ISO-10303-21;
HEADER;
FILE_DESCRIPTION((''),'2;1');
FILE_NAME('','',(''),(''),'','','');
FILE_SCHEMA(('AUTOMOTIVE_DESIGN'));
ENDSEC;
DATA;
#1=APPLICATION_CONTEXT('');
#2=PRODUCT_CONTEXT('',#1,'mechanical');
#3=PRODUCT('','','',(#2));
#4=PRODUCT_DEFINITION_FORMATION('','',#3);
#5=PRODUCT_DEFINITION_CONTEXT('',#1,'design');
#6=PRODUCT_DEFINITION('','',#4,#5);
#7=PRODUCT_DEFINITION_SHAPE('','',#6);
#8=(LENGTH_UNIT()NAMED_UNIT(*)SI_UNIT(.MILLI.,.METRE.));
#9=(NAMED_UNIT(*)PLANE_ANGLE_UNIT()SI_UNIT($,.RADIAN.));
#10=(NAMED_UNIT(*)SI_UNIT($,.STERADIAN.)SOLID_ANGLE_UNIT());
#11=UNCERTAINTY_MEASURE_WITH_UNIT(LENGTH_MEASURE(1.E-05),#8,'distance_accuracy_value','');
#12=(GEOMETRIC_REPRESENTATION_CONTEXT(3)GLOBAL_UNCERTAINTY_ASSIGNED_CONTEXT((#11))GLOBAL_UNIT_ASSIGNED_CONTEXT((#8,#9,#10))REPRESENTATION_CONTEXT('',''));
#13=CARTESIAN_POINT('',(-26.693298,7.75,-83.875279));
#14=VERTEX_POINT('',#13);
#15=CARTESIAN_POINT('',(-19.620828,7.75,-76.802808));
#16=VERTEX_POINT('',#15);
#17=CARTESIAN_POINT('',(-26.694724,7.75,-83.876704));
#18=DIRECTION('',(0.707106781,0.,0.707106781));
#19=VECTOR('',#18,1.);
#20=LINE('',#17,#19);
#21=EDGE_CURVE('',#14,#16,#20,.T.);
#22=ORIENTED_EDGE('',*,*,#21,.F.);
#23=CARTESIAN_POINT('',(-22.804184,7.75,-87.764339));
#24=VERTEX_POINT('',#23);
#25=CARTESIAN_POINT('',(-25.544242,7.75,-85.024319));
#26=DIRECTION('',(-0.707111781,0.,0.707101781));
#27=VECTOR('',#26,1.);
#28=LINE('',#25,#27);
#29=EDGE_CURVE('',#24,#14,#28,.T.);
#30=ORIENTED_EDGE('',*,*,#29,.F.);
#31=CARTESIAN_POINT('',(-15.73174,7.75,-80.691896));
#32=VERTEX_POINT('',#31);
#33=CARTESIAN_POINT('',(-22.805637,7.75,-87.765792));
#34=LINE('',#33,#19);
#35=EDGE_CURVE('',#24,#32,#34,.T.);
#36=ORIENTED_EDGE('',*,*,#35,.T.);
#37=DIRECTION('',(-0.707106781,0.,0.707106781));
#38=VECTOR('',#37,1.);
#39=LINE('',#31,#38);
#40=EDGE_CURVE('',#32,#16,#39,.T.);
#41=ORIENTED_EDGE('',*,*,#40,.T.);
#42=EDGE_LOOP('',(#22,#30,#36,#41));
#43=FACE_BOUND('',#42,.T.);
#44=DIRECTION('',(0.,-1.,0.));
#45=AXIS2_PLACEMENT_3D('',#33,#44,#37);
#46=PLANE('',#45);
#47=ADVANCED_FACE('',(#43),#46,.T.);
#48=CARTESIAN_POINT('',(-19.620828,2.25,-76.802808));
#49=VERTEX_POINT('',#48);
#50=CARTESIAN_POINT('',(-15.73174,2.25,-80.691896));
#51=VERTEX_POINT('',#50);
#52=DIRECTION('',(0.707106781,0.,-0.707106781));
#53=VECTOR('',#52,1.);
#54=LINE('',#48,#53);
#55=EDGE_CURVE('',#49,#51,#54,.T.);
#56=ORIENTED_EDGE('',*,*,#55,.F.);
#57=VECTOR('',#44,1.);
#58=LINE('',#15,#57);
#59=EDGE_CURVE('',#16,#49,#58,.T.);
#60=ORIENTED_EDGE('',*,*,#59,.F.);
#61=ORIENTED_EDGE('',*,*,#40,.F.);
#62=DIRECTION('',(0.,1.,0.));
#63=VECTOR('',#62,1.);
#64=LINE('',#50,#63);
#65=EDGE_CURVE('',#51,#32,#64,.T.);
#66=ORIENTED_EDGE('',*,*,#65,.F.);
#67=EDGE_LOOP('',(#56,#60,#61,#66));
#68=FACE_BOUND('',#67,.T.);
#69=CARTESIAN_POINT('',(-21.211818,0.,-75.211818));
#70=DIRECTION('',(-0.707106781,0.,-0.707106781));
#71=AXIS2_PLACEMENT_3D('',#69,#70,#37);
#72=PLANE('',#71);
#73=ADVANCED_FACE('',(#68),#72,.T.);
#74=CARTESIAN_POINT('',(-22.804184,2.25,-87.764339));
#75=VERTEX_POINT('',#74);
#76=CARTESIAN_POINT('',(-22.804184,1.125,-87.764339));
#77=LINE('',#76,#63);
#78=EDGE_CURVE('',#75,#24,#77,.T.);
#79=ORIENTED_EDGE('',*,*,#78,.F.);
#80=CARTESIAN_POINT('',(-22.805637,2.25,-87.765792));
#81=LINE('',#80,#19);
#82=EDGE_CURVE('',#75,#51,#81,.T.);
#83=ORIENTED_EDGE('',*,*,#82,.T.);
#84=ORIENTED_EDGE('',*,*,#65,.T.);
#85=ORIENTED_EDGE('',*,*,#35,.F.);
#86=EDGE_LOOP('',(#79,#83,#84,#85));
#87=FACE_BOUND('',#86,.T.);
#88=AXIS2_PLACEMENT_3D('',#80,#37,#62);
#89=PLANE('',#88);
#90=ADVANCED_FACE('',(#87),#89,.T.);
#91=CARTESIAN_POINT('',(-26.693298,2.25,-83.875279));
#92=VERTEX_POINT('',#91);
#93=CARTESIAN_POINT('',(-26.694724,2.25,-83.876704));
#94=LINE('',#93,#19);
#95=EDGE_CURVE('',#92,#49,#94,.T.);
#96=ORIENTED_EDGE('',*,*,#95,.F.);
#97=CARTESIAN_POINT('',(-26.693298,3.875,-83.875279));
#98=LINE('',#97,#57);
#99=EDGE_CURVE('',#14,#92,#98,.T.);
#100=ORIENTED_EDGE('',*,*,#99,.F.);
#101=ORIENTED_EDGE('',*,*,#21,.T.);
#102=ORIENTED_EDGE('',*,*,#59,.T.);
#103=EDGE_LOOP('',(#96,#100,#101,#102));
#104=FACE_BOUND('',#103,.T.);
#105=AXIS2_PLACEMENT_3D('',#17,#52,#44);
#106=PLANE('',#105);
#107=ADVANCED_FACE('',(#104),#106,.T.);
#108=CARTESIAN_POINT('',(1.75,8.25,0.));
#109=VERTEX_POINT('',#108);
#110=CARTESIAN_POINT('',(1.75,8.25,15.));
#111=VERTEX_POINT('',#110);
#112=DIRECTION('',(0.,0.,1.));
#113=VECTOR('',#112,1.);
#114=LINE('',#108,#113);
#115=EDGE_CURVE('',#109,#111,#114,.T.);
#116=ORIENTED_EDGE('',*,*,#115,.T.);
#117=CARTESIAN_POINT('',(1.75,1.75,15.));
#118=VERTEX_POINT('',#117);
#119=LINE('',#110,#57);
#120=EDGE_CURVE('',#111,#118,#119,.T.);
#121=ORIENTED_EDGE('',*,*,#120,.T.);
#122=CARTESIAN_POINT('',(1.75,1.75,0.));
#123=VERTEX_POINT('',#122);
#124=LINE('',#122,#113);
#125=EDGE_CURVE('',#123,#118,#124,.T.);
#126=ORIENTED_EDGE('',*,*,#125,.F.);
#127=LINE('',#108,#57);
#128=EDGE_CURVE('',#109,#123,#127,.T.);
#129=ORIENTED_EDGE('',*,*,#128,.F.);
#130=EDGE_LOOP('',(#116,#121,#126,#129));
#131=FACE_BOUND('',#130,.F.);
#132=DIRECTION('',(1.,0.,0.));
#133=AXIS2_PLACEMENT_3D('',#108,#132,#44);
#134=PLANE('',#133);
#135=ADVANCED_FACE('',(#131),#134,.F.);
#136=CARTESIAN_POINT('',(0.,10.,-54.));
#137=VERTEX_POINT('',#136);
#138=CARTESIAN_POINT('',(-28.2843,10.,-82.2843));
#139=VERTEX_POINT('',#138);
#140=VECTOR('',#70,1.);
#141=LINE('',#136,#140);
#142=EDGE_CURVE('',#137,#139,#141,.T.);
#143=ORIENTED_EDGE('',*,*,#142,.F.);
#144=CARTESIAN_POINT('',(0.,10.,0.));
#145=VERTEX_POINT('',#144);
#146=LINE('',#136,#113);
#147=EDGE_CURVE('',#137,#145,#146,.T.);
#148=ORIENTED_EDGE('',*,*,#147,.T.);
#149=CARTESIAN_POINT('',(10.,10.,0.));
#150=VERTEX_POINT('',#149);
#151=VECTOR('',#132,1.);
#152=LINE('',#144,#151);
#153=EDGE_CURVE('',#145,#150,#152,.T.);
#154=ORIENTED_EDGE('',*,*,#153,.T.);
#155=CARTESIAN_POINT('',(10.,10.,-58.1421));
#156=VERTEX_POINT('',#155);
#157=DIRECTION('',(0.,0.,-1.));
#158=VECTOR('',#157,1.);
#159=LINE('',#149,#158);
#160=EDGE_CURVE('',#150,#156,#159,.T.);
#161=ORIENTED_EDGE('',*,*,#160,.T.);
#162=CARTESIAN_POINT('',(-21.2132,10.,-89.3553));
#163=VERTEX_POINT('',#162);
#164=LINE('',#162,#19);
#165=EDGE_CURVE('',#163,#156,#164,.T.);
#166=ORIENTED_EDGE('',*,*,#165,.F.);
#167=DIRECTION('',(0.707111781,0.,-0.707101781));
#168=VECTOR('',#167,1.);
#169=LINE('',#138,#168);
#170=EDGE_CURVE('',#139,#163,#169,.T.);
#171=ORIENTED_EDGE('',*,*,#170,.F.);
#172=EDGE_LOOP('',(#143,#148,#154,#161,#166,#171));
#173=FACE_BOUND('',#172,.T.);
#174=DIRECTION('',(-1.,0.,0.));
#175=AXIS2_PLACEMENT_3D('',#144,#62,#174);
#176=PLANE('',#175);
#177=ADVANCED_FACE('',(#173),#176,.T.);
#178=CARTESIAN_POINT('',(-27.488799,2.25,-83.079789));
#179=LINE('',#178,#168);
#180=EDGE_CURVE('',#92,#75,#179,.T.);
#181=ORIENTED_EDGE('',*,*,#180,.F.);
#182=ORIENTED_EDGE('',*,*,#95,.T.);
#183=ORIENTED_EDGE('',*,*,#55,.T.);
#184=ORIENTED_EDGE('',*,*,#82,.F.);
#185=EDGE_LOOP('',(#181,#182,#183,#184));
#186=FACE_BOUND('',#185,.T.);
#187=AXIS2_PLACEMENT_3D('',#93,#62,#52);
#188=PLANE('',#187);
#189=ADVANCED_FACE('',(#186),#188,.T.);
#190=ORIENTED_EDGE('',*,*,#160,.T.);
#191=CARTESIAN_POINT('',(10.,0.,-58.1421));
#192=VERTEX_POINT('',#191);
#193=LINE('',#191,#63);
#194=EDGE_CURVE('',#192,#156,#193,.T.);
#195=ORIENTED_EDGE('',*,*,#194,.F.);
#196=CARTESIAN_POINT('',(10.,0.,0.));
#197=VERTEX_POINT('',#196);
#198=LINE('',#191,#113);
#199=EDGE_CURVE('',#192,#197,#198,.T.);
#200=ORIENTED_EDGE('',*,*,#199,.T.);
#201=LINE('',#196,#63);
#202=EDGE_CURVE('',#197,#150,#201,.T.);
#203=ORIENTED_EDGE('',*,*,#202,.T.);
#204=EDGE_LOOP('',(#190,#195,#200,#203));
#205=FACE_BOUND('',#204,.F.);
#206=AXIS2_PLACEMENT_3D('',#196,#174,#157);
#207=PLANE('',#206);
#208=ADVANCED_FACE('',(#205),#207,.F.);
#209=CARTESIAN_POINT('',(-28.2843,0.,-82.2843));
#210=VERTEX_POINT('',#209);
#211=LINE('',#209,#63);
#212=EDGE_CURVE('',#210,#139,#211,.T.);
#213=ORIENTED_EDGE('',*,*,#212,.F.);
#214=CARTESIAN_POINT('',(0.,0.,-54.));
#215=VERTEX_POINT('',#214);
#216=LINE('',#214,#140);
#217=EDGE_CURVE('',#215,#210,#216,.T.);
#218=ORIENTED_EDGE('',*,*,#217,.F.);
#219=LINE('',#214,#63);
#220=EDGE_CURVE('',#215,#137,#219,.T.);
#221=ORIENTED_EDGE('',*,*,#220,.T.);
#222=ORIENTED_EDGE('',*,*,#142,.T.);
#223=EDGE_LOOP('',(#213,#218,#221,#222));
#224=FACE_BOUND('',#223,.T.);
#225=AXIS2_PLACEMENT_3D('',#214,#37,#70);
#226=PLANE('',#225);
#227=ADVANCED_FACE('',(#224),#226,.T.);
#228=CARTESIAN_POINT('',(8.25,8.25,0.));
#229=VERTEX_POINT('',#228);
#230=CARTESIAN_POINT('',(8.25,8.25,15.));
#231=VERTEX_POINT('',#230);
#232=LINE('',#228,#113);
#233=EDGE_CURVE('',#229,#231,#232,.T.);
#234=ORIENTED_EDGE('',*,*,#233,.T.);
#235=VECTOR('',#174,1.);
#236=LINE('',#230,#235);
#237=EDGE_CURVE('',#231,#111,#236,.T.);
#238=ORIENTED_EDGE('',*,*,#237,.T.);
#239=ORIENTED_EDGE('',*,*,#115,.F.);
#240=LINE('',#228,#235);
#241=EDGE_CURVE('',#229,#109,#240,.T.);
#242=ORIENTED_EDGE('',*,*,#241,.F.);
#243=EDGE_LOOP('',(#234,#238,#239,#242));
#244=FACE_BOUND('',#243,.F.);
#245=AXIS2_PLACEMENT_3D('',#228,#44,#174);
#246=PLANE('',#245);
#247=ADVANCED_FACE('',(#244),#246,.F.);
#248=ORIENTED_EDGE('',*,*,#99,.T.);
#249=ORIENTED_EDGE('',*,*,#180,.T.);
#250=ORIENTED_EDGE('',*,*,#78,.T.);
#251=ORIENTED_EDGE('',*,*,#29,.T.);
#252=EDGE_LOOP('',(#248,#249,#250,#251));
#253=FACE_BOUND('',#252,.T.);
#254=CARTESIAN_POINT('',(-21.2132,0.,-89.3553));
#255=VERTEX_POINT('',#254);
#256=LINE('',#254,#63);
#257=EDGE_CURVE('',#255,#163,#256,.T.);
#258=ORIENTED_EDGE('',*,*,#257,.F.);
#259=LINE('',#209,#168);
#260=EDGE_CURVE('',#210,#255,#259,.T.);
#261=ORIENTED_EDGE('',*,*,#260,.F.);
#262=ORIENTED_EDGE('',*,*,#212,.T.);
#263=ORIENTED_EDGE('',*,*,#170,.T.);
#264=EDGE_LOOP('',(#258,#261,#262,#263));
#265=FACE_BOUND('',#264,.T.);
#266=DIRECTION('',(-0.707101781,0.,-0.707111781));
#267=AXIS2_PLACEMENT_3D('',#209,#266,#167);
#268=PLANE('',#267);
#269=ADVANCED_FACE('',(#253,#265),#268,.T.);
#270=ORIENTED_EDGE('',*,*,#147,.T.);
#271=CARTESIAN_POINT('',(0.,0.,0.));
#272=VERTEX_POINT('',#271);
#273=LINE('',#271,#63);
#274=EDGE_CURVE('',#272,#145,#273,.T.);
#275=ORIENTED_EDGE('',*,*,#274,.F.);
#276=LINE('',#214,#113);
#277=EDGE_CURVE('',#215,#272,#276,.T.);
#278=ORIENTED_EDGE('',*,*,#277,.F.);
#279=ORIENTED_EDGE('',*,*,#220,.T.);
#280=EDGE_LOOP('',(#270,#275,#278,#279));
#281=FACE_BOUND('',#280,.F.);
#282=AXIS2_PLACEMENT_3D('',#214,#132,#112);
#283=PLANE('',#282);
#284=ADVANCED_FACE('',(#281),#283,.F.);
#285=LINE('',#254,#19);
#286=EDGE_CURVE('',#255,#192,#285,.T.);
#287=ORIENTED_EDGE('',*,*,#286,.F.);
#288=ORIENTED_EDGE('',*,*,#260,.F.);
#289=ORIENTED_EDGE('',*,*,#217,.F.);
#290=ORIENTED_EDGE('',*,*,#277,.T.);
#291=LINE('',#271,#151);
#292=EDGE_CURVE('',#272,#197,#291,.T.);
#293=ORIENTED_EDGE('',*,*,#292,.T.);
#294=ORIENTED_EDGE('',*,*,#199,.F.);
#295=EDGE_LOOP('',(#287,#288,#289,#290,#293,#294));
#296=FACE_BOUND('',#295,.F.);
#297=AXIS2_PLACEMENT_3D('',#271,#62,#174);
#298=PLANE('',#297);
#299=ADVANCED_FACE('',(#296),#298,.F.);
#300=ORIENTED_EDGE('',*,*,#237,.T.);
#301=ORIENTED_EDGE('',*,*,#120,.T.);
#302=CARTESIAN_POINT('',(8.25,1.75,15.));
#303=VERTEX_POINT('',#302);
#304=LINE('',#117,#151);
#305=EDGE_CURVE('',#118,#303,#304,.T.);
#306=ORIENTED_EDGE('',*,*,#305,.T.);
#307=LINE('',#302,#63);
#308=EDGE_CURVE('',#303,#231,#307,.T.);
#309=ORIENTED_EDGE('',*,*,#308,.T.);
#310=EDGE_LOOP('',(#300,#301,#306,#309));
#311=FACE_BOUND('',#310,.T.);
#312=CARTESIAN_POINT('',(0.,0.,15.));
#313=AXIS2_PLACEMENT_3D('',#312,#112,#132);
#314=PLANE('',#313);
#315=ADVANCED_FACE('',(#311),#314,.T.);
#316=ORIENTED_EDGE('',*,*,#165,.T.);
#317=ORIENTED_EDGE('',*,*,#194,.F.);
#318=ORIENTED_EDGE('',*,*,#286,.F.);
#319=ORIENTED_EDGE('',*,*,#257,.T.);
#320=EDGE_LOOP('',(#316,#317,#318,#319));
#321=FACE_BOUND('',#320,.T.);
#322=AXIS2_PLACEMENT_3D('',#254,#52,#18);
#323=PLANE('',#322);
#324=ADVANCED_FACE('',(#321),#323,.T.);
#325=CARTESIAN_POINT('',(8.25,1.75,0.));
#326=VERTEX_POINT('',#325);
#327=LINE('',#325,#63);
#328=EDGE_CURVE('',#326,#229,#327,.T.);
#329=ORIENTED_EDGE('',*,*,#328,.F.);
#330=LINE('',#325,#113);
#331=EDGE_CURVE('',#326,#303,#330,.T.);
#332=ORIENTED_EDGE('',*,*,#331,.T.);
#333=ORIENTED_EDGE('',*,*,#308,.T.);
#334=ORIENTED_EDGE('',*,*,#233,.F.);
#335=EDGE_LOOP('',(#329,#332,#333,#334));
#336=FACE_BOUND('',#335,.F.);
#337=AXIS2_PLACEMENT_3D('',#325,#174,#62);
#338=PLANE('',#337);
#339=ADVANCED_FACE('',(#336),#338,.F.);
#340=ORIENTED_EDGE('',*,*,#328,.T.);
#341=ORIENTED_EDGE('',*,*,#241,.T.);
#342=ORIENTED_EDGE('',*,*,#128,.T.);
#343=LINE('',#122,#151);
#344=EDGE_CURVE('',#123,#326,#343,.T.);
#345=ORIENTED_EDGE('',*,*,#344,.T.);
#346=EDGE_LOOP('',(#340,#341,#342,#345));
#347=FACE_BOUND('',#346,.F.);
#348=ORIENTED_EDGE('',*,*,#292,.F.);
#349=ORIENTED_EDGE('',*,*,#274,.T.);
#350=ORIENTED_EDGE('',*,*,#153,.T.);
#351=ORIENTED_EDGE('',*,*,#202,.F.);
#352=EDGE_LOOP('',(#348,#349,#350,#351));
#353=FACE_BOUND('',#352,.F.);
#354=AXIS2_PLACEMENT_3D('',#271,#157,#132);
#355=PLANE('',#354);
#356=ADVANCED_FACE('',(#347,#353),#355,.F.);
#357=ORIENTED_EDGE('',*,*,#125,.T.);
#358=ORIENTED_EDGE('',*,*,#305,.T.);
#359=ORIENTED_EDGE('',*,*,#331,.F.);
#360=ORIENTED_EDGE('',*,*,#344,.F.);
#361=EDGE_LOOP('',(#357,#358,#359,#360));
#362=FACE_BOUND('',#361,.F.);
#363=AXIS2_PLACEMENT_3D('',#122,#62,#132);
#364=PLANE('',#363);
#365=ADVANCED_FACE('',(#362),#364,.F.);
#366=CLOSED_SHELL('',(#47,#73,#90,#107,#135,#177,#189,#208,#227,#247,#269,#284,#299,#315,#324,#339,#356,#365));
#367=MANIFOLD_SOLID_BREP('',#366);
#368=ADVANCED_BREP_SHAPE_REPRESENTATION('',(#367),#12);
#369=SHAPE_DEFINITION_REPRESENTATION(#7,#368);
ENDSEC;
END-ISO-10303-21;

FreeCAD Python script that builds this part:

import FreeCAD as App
import Part
import Sketcher

V = App.Vector
Q = App.Units.Quantity

doc = App.newDocument("Part")
params = doc.addObject("Spreadsheet::Sheet", "Params")
for row, (alias, value) in enumerate([
    ("sketch1_width", "10 mm"),
    ("sketch1_height", "54 mm"),
    ("sketch1_length", "10 mm"),
    ("sketch1_length2", "40 mm"),
    ("pad1_length", "10 mm"),
    ("sketch2_width", "6.5 mm"),
    ("pad2_length", "15 mm"),
    ("sketch3_width", "5.5 mm"),
    ("pocket1_length", "10 mm"),
], start=1):
    params.set(f"A{row}", alias)
    params.set(f"B{row}", "=" + value)
    params.setAlias(f"B{row}", alias)

body = doc.addObject("PartDesign::Body", "Body")

# Sketch on XZ plane
sketch1 = body.newObject("Sketcher::SketchObject", "Sketch")
sketch1.AttachmentSupport = (doc.getObject("XZ_Plane"), [""])
sketch1.MapMode = "FlatFace"
sketch1.addGeometry(Part.LineSegment(V(0, -54, 0), V(0, 0, 0)), False)
sketch1.addGeometry(Part.LineSegment(V(0, 0, 0), V(10, 0, 0)), False)
sketch1.addGeometry(Part.LineSegment(V(10, 0, 0), V(10, -58, 0)), False)
sketch1.addGeometry(Part.LineSegment(V(10, -58, 0), V(-21, -89, 0)), False)
sketch1.addGeometry(Part.LineSegment(V(-21, -89, 0), V(-28, -82, 0)), False)
sketch1.addGeometry(Part.LineSegment(V(-28, -82, 0), V(0, -54, 0)), False)
sketch1.addConstraint(Sketcher.Constraint("Coincident", 0, 2, 1, 1))
sketch1.addConstraint(Sketcher.Constraint("Coincident", 1, 2, 2, 1))
sketch1.addConstraint(Sketcher.Constraint("Coincident", 2, 2, 3, 1))
sketch1.addConstraint(Sketcher.Constraint("Coincident", 3, 2, 4, 1))
sketch1.addConstraint(Sketcher.Constraint("Coincident", 4, 2, 5, 1))
sketch1.addConstraint(Sketcher.Constraint("Coincident", 5, 2, 0, 1))
sketch1.addConstraint(Sketcher.Constraint("Vertical", 0))
sketch1.addConstraint(Sketcher.Constraint("Horizontal", 1))
sketch1.addConstraint(Sketcher.Constraint("Vertical", 2))
sketch1.addConstraint(Sketcher.Constraint("Coincident", 0, 2, -1, 1))
sketch1.addConstraint(Sketcher.Constraint("Perpendicular", 3, 4))
sketch1.addConstraint(Sketcher.Constraint("Perpendicular", 4, 5))
sketch1.addConstraint(Sketcher.Constraint("DistanceX", 1, 1, 1, 2, 10.0))
sketch1.addConstraint(Sketcher.Constraint("DistanceY", 0, 1, 0, 2, 54.0))
sketch1.addConstraint(Sketcher.Constraint("Angle", 3, Q("-135 deg")))
sketch1.addConstraint(Sketcher.Constraint("Distance", 4, 10.0))
sketch1.addConstraint(Sketcher.Constraint("Distance", 5, 40.0))
sketch1.setExpression("Constraints[12]", "Params.sketch1_width")
sketch1.setExpression("Constraints[13]", "Params.sketch1_height")
sketch1.setExpression("Constraints[15]", "Params.sketch1_length")
sketch1.setExpression("Constraints[16]", "Params.sketch1_length2")
pad1 = body.newObject("PartDesign::Pad", "Pad")
pad1.Profile = sketch1
pad1.setExpression("Length", "Params.pad1_length")
pad1.Reversed = True

# Sketch on XY plane
sketch2 = body.newObject("Sketcher::SketchObject", "Sketch001")
sketch2.AttachmentSupport = (doc.getObject("XY_Plane"), [""])
sketch2.MapMode = "FlatFace"
sketch2.addGeometry(Part.LineSegment(V(2, 8, 0), V(2, 2, 0)), False)
sketch2.addGeometry(Part.LineSegment(V(2, 2, 0), V(8, 2, 0)), False)
sketch2.addGeometry(Part.LineSegment(V(8, 2, 0), V(8, 8, 0)), False)
sketch2.addGeometry(Part.LineSegment(V(8, 8, 0), V(2, 8, 0)), False)
sketch2.addConstraint(Sketcher.Constraint("Coincident", 0, 2, 1, 1))
sketch2.addConstraint(Sketcher.Constraint("Coincident", 1, 2, 2, 1))
sketch2.addConstraint(Sketcher.Constraint("Coincident", 2, 2, 3, 1))
sketch2.addConstraint(Sketcher.Constraint("Coincident", 3, 2, 0, 1))
sketch2.addConstraint(Sketcher.Constraint("Vertical", 0))
sketch2.addConstraint(Sketcher.Constraint("Horizontal", 1))
sketch2.addConstraint(Sketcher.Constraint("Vertical", 2))
sketch2.addConstraint(Sketcher.Constraint("Horizontal", 3))
sketch2.addConstraint(Sketcher.Constraint("Equal", 3, 0))
sketch2.addConstraint(Sketcher.Constraint("DistanceX", 1, 1, 1, 2, 6.5))
sketch2.addConstraint(Sketcher.Constraint("DistanceX", -1, 1, 0, 2, 1.75))
sketch2.addConstraint(Sketcher.Constraint("DistanceY", -1, 1, 0, 2, 1.75))
sketch2.setExpression("Constraints[9]", "Params.sketch2_width")
pad2 = body.newObject("PartDesign::Pad", "Pad001")
pad2.Profile = sketch2
pad2.setExpression("Length", "Params.pad2_length")

# Sketch on an angled plane
sketch3 = body.newObject("Sketcher::SketchObject", "Sketch002")
sketch3.Placement = App.Placement(V(-28.2843, 0, -82.2843), App.Rotation(V(-0.707106781, 0, 0.707106781), V(0, 0.999999999, 0), V(-0.707106781, 0, -0.707106781), "ZXY"))
sketch3.addGeometry(Part.LineSegment(V(-8, 2, 0), V(-2, 2, 0)), False)
sketch3.addGeometry(Part.LineSegment(V(-2, 2, 0), V(-2, 8, 0)), False)
sketch3.addGeometry(Part.LineSegment(V(-2, 8, 0), V(-8, 8, 0)), False)
sketch3.addGeometry(Part.LineSegment(V(-8, 8, 0), V(-8, 2, 0)), False)
sketch3.addConstraint(Sketcher.Constraint("Coincident", 0, 2, 1, 1))
sketch3.addConstraint(Sketcher.Constraint("Coincident", 1, 2, 2, 1))
sketch3.addConstraint(Sketcher.Constraint("Coincident", 2, 2, 3, 1))
sketch3.addConstraint(Sketcher.Constraint("Coincident", 3, 2, 0, 1))
sketch3.addConstraint(Sketcher.Constraint("Horizontal", 0))
sketch3.addConstraint(Sketcher.Constraint("Vertical", 1))
sketch3.addConstraint(Sketcher.Constraint("Horizontal", 2))
sketch3.addConstraint(Sketcher.Constraint("Vertical", 3))
sketch3.addConstraint(Sketcher.Constraint("Equal", 2, 1))
sketch3.addConstraint(Sketcher.Constraint("DistanceX", 0, 1, 0, 2, 5.5))
sketch3.addConstraint(Sketcher.Constraint("DistanceX", 0, 2, -1, 1, 2.25))
sketch3.addConstraint(Sketcher.Constraint("DistanceY", -1, 1, 0, 2, 2.25))
sketch3.setExpression("Constraints[9]", "Params.sketch3_width")
pocket1 = body.newObject("PartDesign::Pocket", "Pocket")
pocket1.Profile = sketch3
pocket1.setExpression("Length", "Params.pocket1_length")

doc.recompute()
